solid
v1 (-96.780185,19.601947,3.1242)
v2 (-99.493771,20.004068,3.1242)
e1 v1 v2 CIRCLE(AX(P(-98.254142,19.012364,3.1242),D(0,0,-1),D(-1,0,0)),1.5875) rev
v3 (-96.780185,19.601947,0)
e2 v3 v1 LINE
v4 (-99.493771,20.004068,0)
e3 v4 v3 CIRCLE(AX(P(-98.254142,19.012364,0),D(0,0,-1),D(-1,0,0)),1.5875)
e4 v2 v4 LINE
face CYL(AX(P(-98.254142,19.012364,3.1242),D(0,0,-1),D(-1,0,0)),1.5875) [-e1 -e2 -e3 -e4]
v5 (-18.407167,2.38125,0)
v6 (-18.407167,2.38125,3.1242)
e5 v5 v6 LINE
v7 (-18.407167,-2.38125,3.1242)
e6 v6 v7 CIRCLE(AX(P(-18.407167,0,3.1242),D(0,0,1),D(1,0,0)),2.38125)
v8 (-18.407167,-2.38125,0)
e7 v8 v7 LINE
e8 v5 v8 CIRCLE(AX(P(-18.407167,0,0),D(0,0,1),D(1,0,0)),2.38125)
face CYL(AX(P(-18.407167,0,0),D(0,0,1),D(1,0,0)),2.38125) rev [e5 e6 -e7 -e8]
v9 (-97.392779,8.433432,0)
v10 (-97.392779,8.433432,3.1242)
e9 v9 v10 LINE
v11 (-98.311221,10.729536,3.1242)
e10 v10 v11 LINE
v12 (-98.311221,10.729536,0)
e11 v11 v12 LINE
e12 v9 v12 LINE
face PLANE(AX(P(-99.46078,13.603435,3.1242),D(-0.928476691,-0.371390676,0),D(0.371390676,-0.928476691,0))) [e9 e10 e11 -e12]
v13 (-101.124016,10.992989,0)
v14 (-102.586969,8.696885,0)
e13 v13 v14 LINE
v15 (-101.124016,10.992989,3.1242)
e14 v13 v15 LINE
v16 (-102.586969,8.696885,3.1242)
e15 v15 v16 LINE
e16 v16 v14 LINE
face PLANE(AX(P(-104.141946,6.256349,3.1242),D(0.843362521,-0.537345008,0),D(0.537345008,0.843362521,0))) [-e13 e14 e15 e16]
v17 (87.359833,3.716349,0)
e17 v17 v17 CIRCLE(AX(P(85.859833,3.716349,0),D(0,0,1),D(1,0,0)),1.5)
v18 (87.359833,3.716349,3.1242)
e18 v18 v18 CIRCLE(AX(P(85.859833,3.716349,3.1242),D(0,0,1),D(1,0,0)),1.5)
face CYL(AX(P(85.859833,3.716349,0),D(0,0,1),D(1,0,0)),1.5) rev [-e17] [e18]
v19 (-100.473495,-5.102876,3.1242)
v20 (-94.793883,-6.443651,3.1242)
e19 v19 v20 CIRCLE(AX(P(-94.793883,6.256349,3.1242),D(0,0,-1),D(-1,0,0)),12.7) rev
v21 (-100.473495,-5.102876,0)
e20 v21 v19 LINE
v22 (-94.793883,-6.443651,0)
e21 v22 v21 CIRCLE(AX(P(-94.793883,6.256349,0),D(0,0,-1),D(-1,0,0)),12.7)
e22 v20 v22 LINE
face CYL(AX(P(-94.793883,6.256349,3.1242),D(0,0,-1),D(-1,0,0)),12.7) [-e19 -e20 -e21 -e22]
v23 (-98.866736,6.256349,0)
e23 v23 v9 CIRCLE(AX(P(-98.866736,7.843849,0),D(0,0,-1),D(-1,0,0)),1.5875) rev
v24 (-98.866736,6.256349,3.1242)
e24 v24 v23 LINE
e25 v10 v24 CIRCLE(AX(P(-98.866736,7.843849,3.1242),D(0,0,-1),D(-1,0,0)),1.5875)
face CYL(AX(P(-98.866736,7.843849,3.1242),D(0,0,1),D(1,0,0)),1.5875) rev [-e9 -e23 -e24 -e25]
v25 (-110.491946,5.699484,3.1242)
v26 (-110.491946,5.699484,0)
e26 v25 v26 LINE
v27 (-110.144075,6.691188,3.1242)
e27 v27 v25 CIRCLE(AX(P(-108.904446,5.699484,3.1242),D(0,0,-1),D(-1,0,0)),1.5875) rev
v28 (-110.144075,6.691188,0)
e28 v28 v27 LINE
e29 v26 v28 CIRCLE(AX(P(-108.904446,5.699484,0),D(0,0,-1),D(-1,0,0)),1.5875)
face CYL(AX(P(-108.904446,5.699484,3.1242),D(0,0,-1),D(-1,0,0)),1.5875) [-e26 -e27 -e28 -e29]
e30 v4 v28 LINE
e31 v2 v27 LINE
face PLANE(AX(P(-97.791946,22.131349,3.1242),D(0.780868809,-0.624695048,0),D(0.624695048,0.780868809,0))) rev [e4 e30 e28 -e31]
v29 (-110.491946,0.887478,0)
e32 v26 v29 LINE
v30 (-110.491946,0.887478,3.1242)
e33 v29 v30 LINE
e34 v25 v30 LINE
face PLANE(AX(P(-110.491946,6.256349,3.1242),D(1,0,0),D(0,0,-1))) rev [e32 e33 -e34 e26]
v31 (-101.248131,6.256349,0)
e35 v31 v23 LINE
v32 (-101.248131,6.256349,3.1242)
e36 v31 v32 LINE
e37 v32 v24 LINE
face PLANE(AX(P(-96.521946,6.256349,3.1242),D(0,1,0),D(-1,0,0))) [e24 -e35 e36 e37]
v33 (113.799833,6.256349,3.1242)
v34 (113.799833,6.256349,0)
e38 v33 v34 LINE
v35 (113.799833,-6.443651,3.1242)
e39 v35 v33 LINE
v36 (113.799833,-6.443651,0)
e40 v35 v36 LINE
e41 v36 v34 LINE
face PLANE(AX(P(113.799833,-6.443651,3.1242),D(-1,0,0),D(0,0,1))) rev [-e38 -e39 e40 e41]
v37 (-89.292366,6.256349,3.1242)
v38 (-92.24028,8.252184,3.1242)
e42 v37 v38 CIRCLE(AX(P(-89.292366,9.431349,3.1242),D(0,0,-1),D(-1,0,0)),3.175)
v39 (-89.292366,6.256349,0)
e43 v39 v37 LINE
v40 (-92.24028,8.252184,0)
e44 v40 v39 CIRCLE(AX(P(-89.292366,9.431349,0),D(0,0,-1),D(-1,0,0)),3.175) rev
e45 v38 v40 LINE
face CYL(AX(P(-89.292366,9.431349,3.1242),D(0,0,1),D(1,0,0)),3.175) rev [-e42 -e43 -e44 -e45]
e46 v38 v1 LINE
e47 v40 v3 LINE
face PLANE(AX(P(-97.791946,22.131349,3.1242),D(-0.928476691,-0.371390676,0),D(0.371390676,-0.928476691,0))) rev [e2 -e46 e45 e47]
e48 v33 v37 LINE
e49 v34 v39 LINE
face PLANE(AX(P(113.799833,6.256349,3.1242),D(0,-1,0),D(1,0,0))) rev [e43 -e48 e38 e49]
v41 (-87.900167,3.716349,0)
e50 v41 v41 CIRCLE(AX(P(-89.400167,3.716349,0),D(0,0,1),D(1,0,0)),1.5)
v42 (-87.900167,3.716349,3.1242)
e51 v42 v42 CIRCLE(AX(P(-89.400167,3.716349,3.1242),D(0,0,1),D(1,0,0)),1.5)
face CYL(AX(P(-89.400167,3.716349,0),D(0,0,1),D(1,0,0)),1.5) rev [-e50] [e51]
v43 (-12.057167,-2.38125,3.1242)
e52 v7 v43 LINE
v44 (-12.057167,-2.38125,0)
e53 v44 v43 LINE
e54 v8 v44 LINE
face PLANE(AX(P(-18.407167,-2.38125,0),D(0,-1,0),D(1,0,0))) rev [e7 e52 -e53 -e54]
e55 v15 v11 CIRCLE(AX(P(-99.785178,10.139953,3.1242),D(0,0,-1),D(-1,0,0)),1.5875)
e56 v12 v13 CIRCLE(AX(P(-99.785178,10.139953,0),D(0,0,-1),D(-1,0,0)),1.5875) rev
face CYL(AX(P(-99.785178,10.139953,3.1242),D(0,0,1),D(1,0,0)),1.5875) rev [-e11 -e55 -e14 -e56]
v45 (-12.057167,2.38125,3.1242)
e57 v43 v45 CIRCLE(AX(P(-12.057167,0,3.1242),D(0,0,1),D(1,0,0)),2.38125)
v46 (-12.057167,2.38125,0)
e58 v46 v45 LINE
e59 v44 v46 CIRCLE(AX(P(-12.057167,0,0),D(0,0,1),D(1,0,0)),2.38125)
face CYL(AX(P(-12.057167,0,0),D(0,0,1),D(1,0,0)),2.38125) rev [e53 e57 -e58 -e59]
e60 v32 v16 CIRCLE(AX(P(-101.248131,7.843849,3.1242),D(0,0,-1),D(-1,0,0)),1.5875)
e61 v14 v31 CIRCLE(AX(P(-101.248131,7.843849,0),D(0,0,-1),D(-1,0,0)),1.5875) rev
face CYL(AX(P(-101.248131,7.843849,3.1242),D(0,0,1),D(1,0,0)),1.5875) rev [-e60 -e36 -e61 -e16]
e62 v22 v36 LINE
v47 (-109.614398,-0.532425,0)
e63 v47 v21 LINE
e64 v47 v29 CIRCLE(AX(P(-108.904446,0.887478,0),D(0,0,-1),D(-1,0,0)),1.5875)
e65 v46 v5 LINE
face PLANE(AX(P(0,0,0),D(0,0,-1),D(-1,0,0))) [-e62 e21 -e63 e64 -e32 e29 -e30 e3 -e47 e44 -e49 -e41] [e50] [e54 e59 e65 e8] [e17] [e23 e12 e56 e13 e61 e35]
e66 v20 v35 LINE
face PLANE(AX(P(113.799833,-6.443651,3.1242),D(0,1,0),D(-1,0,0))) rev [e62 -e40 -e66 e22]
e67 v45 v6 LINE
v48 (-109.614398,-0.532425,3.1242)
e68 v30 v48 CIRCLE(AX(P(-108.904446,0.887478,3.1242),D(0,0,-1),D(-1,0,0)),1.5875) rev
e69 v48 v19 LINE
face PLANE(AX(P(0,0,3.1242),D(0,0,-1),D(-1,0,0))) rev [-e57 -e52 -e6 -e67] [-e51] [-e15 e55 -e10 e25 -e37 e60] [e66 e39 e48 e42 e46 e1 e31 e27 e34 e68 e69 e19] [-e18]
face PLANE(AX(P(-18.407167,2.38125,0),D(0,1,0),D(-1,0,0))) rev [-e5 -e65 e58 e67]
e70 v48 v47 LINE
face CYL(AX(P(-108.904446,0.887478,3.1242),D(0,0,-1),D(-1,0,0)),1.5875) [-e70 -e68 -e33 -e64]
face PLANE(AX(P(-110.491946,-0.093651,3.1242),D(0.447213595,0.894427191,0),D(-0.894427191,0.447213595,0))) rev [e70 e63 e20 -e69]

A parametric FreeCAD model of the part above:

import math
import FreeCAD as App
import Part
import Sketcher
Q = App.Units.Quantity


def edges_at(feature, points):
    """Names of the edges that pass closest to the given points."""
    edges = feature.Shape.Edges
    near = lambda p: min(range(len(edges)), key=lambda i: edges[i].distToShape(Part.Vertex(*p))[0])
    return sorted({f"Edge{near(p) + 1}" for p in points})

doc = App.newDocument("Part")
body = doc.addObject("PartDesign::Body", "Body")

sketch1 = body.newObject("Sketcher::SketchObject", "Sketch")
sketch1.AttachmentSupport = (doc.getObject("XY_Plane"), [""])
sketch1.MapMode = "FlatFace"
sketch1.addGeometry([
    Part.LineSegment(App.Vector(-98, -6, 0), App.Vector(114, -6, 0)),
    Part.LineSegment(App.Vector(114, -6, 0), App.Vector(114, 6, 0)),
    Part.LineSegment(App.Vector(114, 6, 0), App.Vector(-91, 6, 0)),
    Part.LineSegment(App.Vector(-91, 6, 0), App.Vector(-98, 22, 0)),
    Part.LineSegment(App.Vector(-98, 22, 0), App.Vector(-110, 6, 0)),
    Part.LineSegment(App.Vector(-110, 6, 0), App.Vector(-110, 0, 0)),
    Part.LineSegment(App.Vector(-110, 0, 0), App.Vector(-98, -6, 0)),
    Part.LineSegment(App.Vector(-104, 6, 0), App.Vector(-99, 14, 0)),
    Part.LineSegment(App.Vector(-99, 14, 0), App.Vector(-97, 6, 0)),
    Part.LineSegment(App.Vector(-97, 6, 0), App.Vector(-104, 6, 0)),
], False)
sketch1.addConstraint([
    Sketcher.Constraint("Coincident", 0, 2, 1, 1),
    Sketcher.Constraint("Coincident", 1, 2, 2, 1),
    Sketcher.Constraint("Coincident", 2, 2, 3, 1),
    Sketcher.Constraint("Coincident", 3, 2, 4, 1),
    Sketcher.Constraint("Coincident", 4, 2, 5, 1),
    Sketcher.Constraint("Coincident", 5, 2, 6, 1),
    Sketcher.Constraint("Coincident", 6, 2, 0, 1),
    Sketcher.Constraint("Coincident", 7, 2, 8, 1),
    Sketcher.Constraint("Coincident", 8, 2, 9, 1),
    Sketcher.Constraint("Coincident", 9, 2, 7, 1),
    Sketcher.Constraint("Horizontal", 0),
    Sketcher.Constraint("Vertical", 1),
    Sketcher.Constraint("Horizontal", 2),
    Sketcher.Constraint("Vertical", 5),
    Sketcher.Constraint("Horizontal", 9),
    Sketcher.Constraint("Parallel", 3, 8),
    Sketcher.Constraint("Horizontal", 2, 2, 4, 2),
    Sketcher.Constraint("Horizontal", 4, 2, 8, 2),
    Sketcher.Constraint("Vertical", 3, 2, 6, 2),
    Sketcher.Constraint("DistanceX", 9, 2, 9, 1, Q("0.3 in")),
    Sketcher.Constraint("DistanceY", 1, 1, 1, 2, Q("0.5 in")),
    Sketcher.Constraint("DistanceY", 5, 2, 5, 1, Q("0.25 in")),
    Sketcher.Constraint("DistanceX", 4, 2, 3, 2, Q("0.5 in")),
    Sketcher.Constraint("DistanceX", 8, 2, 2, 2, Q("0.2 in")),
    Sketcher.Constraint("DistanceX", 3, 2, 2, 2, Q("0.25 in")),
    Sketcher.Constraint("DistanceY", 2, 2, 3, 2, Q("0.625 in")),
    Sketcher.Constraint("DistanceX", 0, 1, 0, 2, Q("211.591779 mm")),
    Sketcher.Constraint("DistanceY", 0, 2, -1, 1, Q("6.443651 mm")),
    Sketcher.Constraint("DistanceX", 7, 2, -1, 1, Q("99.46078 mm")),
    Sketcher.Constraint("Distance", 7, Q("8.711658 mm")),
])
pad1 = body.newObject("PartDesign::Pad", "Pad")
pad1.Profile = sketch1
pad1.Length = Q("0.123 in")
doc.recompute()

fillet = body.newObject("PartDesign::Fillet", "Fillet")
fillet.Base = (pad1, edges_at(pad1, [(-97.792, -6.444, 1.562)]))
fillet.Radius = Q("0.5 in")
doc.recompute()

fillet2 = body.newObject("PartDesign::Fillet", "Fillet001")
fillet2.Base = (fillet, edges_at(fillet, [
    (-110.492, 6.256, 1.562),
    (-97.792, 22.131, 1.562),
    (-110.492, -0.094, 1.562),
    (-104.142, 6.256, 1.562),
    (-96.522, 6.256, 1.562),
    (-99.461, 13.603, 1.562),
]))
fillet2.Radius = Q("0.0625 in")
doc.recompute()

fillet3 = body.newObject("PartDesign::Fillet", "Fillet002")
fillet3.Base = (fillet2, edges_at(fillet2, [(-91.442, 6.256, 1.562)]))
fillet3.Radius = Q("0.125 in")

sketch2 = body.newObject("Sketcher::SketchObject", "Sketch001")
sketch2.AttachmentSupport = (doc.getObject("XY_Plane"), [""])
sketch2.MapMode = "FlatFace"
sketch2.AttachmentOffset = App.Placement(App.Vector(0, 0, 0.123 * 25.4), App.Rotation())
sketch2.addGeometry([
    Part.LineSegment(App.Vector(-12.1, 2.4, 0), App.Vector(-18.4, 2.4, 0)),
    Part.ArcOfCircle(Part.Circle(App.Vector(-18.4, 0, 0), App.Vector(0, 0, 1), 2.4), math.radians(90), math.radians(270)),
    Part.LineSegment(App.Vector(-18.4, -2.4, 0), App.Vector(-12.1, -2.4, 0)),
    Part.ArcOfCircle(Part.Circle(App.Vector(-12.1, 0, 0), App.Vector(0, 0, 1), 2.4), math.radians(-90), math.radians(90)),
], False)
sketch2.addConstraint([
    Sketcher.Constraint("Tangent", 0, 2, 1, 1),
    Sketcher.Constraint("Tangent", 1, 2, 2, 1),
    Sketcher.Constraint("Tangent", 2, 2, 3, 1),
    Sketcher.Constraint("Tangent", 3, 2, 0, 1),
    Sketcher.Constraint("Horizontal", 0),
    Sketcher.Constraint("Horizontal", 2),
    Sketcher.Constraint("PointOnObject", 1, 3, -1),
    Sketcher.Constraint("Radius", 1, Q("0.09375 in")),
    Sketcher.Constraint("DistanceX", 0, 2, 0, 1, Q("0.25 in")),
    Sketcher.Constraint("DistanceX", 1, 3, -1, 1, Q("18.407167 mm")),
])
pocket1 = body.newObject("PartDesign::Pocket", "Pocket")
pocket1.Profile = sketch2
pocket1.Type = "ThroughAll"

sketch3 = body.newObject("Sketcher::SketchObject", "Sketch002")
sketch3.AttachmentSupport = (doc.getObject("XY_Plane"), [""])
sketch3.MapMode = "FlatFace"
sketch3.AttachmentOffset = App.Placement(App.Vector(0, 0, 0.123 * 25.4), App.Rotation())
sketch3.addGeometry([
    Part.Circle(App.Vector(85.9, 3.7, 0), App.Vector(0, 0, 1), 1.5),
    Part.Circle(App.Vector(-89.4, 3.7, 0), App.Vector(0, 0, 1), 1.5),
], False)
sketch3.addConstraint([
    Sketcher.Constraint("Equal", 0, 1),
    Sketcher.Constraint("Horizontal", 0, 3, 1, 3),
    Sketcher.Constraint("DistanceX", 1, 3, 0, 3, Q("6.9 in")),
    Sketcher.Constraint("Diameter", 0, Q("3 mm")),
    Sketcher.Constraint("DistanceY", -1, 1, 0, 3, Q("3.716349 mm")),
    Sketcher.Constraint("DistanceX", -1, 1, 0, 3, Q("85.859833 mm")),
])
pocket2 = body.newObject("PartDesign::Pocket", "Pocket001")
pocket2.Profile = sketch3
pocket2.Type = "ThroughAll"

doc.recompute()
